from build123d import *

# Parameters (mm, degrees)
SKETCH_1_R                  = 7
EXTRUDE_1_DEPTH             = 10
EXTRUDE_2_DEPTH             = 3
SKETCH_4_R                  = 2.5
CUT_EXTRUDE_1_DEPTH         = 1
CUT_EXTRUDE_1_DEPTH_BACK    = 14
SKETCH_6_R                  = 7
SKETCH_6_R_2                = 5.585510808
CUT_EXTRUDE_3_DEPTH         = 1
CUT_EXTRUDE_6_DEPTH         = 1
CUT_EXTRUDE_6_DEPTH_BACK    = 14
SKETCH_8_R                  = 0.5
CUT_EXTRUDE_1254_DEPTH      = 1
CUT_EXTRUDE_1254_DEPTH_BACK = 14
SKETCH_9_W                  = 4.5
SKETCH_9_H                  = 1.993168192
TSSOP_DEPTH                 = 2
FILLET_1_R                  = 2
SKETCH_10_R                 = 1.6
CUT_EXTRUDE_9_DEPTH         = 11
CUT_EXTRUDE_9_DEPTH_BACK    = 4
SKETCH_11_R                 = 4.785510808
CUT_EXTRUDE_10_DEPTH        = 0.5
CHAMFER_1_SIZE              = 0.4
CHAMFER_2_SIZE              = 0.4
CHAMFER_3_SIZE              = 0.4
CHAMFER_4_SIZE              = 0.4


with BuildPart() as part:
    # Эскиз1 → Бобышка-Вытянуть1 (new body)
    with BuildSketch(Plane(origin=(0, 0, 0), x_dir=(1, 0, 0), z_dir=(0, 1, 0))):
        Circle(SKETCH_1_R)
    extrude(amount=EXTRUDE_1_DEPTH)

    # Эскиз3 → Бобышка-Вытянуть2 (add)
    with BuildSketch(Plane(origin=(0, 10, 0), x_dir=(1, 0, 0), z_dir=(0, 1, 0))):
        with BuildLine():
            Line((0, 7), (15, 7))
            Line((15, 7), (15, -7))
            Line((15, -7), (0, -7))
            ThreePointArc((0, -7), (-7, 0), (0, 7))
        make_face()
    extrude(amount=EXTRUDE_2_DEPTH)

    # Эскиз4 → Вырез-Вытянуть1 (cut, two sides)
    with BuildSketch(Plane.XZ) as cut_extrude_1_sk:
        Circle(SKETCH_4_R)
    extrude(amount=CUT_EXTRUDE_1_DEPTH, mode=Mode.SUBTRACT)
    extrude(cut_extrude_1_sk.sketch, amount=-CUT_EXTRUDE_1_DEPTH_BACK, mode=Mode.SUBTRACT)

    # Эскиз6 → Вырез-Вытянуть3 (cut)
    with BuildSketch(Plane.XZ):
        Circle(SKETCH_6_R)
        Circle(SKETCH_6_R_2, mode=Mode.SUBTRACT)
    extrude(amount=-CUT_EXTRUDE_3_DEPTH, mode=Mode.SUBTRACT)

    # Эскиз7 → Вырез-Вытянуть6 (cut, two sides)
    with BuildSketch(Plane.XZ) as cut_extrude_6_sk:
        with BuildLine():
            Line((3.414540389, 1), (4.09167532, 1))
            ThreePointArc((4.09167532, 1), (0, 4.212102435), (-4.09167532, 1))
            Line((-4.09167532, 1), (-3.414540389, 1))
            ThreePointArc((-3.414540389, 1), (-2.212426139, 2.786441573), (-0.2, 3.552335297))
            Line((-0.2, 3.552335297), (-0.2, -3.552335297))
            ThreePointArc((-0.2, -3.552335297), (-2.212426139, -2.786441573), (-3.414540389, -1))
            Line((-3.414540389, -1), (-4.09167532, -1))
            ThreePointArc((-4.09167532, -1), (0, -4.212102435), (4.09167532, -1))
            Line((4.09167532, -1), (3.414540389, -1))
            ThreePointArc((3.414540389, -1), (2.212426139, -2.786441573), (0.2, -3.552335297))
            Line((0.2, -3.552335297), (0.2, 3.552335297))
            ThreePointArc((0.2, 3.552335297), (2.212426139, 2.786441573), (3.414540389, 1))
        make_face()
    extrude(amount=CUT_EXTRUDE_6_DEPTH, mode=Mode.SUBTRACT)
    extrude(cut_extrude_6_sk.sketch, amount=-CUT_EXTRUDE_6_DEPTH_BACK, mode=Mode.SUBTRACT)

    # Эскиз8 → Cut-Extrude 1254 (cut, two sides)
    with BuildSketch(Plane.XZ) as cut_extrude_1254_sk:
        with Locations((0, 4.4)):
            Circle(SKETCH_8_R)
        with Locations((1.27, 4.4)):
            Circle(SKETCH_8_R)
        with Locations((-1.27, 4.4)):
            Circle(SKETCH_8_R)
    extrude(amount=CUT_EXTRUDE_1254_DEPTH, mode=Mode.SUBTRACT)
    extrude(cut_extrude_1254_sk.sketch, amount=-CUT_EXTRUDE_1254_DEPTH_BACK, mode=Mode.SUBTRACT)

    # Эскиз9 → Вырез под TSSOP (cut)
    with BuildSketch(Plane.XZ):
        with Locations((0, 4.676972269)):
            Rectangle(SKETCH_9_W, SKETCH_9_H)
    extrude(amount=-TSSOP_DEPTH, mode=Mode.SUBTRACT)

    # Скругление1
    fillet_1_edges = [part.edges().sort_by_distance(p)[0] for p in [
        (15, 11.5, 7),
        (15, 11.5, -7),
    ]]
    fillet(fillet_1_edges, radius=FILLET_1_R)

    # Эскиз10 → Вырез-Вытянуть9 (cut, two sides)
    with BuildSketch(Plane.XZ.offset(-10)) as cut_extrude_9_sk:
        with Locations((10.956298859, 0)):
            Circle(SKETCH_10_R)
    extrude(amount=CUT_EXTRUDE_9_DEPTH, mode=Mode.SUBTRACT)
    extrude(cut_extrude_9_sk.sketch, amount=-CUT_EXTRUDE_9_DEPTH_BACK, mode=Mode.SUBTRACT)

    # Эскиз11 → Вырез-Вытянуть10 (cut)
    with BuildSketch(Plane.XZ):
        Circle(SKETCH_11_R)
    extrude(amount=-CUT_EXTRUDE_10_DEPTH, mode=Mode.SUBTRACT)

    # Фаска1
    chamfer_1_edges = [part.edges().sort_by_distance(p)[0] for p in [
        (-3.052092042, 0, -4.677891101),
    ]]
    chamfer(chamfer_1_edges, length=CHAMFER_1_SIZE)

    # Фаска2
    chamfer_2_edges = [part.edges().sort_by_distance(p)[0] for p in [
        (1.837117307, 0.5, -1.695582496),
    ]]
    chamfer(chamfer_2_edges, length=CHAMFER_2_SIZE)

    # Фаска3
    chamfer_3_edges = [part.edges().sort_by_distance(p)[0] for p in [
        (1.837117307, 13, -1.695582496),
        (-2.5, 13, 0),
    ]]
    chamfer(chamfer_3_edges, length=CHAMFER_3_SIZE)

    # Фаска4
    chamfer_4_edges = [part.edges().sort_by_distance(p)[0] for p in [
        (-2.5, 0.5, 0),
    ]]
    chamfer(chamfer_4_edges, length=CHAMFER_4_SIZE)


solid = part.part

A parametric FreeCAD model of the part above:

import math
import FreeCAD as App
import Part
import Sketcher
from FreeCAD import Vector
Q = App.Units.Quantity


def edges_at(feature, points):
    """Names of the edges that pass closest to the given points."""
    edges = feature.Shape.Edges
    near = lambda p: min(range(len(edges)), key=lambda i: edges[i].distToShape(Part.Vertex(*p))[0])
    return sorted({f"Edge{near(p) + 1}" for p in points})

doc = App.newDocument("Part")
body = doc.addObject("PartDesign::Body", "Body")

sketch1 = doc.addObject("Sketcher::SketchObject", "Sketch")
body.addObject(sketch1)
sketch1.AttachmentSupport = (doc.XZ_Plane, [""])
sketch1.MapMode = "FlatFace"
sketch1.addGeometry(Part.Circle(Vector(0, 0, 0), Vector(0, 0, 1), 7), False)
sketch1.addConstraint([
    Sketcher.Constraint("Coincident", 0, 3, -1, 1),
    Sketcher.Constraint("Diameter", 0, Q("14 mm")),
])
pad1 = doc.addObject("PartDesign::Pad", "Pad")
body.addObject(pad1)
pad1.Profile = sketch1
pad1.Length = 10
pad1.Reversed = True

sketch2 = doc.addObject("Sketcher::SketchObject", "Sketch001")
body.addObject(sketch2)
sketch2.AttachmentSupport = (doc.XZ_Plane, [""])
sketch2.MapMode = "FlatFace"
sketch2.AttachmentOffset = App.Placement(Vector(0, 0, -10), App.Rotation())
sketch2.addGeometry([
    Part.LineSegment(Vector(15, -7, 0), Vector(0, -7, 0)),
    Part.ArcOfCircle(Part.Circle(Vector(0, 0, 0), Vector(0, 0, 1), 7), math.radians(90), math.radians(270)),
    Part.LineSegment(Vector(0, 7, 0), Vector(15, 7, 0)),
    Part.LineSegment(Vector(15, 7, 0), Vector(15, -7, 0)),
], False)
sketch2.addConstraint([
    Sketcher.Constraint("Tangent", 0, 2, 1, 2),
    Sketcher.Constraint("Tangent", 1, 1, 2, 1),
    Sketcher.Constraint("Coincident", 2, 2, 3, 1),
    Sketcher.Constraint("Coincident", 3, 2, 0, 1),
    Sketcher.Constraint("Horizontal", 0),
    Sketcher.Constraint("Horizontal", 2),
    Sketcher.Constraint("Vertical", 3),
    Sketcher.Constraint("Coincident", 1, 3, -1, 1),
    Sketcher.Constraint("Radius", 1, Q("7 mm")),
    Sketcher.Constraint("DistanceX", 0, 2, 0, 1, Q("15 mm")),
])
pad2 = doc.addObject("PartDesign::Pad", "Pad001")
body.addObject(pad2)
pad2.Profile = sketch2
pad2.Length = 3
pad2.Reversed = True

sketch3 = doc.addObject("Sketcher::SketchObject", "Sketch002")
body.addObject(sketch3)
sketch3.AttachmentSupport = (doc.XZ_Plane, [""])
sketch3.MapMode = "FlatFace"
sketch3.addGeometry(Part.Circle(Vector(0, 0, 0), Vector(0, 0, 1), 2.5), False)
sketch3.addConstraint([
    Sketcher.Constraint("Coincident", 0, 3, -1, 1),
    Sketcher.Constraint("Diameter", 0, Q("5 mm")),
])
pocket1 = doc.addObject("PartDesign::Pocket", "Pocket")
body.addObject(pocket1)
pocket1.Profile = sketch3
pocket1.Type = "ThroughAll"
pocket1.Midplane = True

sketch4 = doc.addObject("Sketcher::SketchObject", "Sketch003")
body.addObject(sketch4)
sketch4.AttachmentSupport = (doc.XZ_Plane, [""])
sketch4.MapMode = "FlatFace"
sketch4.addGeometry([
    Part.Circle(Vector(0, 0, 0), Vector(0, 0, 1), 7),
    Part.Circle(Vector(0, 0, 0), Vector(0, 0, 1), 6),
], False)
sketch4.addConstraint([
    Sketcher.Constraint("Coincident", 0, 3, -1, 1),
    Sketcher.Constraint("Coincident", 1, 3, -1, 1),
    Sketcher.Constraint("Diameter", 0, Q("14 mm")),
    Sketcher.Constraint("Diameter", 1, Q("11.171022 mm")),
])
pocket2 = doc.addObject("PartDesign::Pocket", "Pocket001")
body.addObject(pocket2)
pocket2.Profile = sketch4
pocket2.Length = 1

sketch5 = doc.addObject("Sketcher::SketchObject", "Sketch004")
body.addObject(sketch5)
sketch5.AttachmentSupport = (doc.XZ_Plane, [""])
sketch5.MapMode = "FlatFace"
sketch5.addGeometry([
    Part.LineSegment(Vector(3.4, 1, 0), Vector(4.1, 1, 0)),
    Part.ArcOfCircle(Part.Circle(Vector(0, 0, 0), Vector(0, 0, 1), 4.2), math.radians(14), math.radians(166)),
    Part.LineSegment(Vector(-4.1, 1, 0), Vector(-3.4, 1, 0)),
    Part.ArcOfCircle(Part.Circle(Vector(0, 0, 0), Vector(0, 0, 1), 3.6), math.radians(93), math.radians(164)),
    Part.LineSegment(Vector(-0.2, 3.6, 0), Vector(-0.2, -3.6, 0)),
    Part.ArcOfCircle(Part.Circle(Vector(0, 0, 0), Vector(0, 0, 1), 3.6), math.radians(-164), math.radians(-93)),
    Part.LineSegment(Vector(-3.4, -1, 0), Vector(-4.1, -1, 0)),
    Part.ArcOfCircle(Part.Circle(Vector(0, 0, 0), Vector(0, 0, 1), 4.2), math.radians(-166), math.radians(-14)),
    Part.LineSegment(Vector(4.1, -1, 0), Vector(3.4, -1, 0)),
    Part.ArcOfCircle(Part.Circle(Vector(0, 0, 0), Vector(0, 0, 1), 3.6), math.radians(-87), math.radians(-16)),
    Part.LineSegment(Vector(0.2, -3.6, 0), Vector(0.2, 3.6, 0)),
    Part.ArcOfCircle(Part.Circle(Vector(0, 0, 0), Vector(0, 0, 1), 3.6), math.radians(16), math.radians(87)),
], False)
sketch5.addConstraint([
    Sketcher.Constraint("Coincident", 0, 2, 1, 1),
    Sketcher.Constraint("Coincident", 1, 2, 2, 1),
    Sketcher.Constraint("Coincident", 2, 2, 3, 2),
    Sketcher.Constraint("Coincident", 3, 1, 4, 1),
    Sketcher.Constraint("Coincident", 4, 2, 5, 2),
    Sketcher.Constraint("Coincident", 5, 1, 6, 1),
    Sketcher.Constraint("Coincident", 6, 2, 7, 1),
    Sketcher.Constraint("Coincident", 7, 2, 8, 1),
    Sketcher.Constraint("Coincident", 8, 2, 9, 2),
    Sketcher.Constraint("Coincident", 9, 1, 10, 1),
    Sketcher.Constraint("Coincident", 10, 2, 11, 2),
    Sketcher.Constraint("Coincident", 11, 1, 0, 1),
    Sketcher.Constraint("Horizontal", 0),
    Sketcher.Constraint("Horizontal", 2),
    Sketcher.Constraint("Vertical", 4),
    Sketcher.Constraint("Horizontal", 6),
    Sketcher.Constraint("Horizontal", 8),
    Sketcher.Constraint("Vertical", 10),
    Sketcher.Constraint("Coincident", 1, 3, -1, 1),
    Sketcher.Constraint("Coincident", 3, 3, -1, 1),
    Sketcher.Constraint("Coincident", 5, 3, -1, 1),
    Sketcher.Constraint("Coincident", 7, 3, -1, 1),
    Sketcher.Constraint("Coincident", 9, 3, -1, 1),
    Sketcher.Constraint("Coincident", 11, 3, -1, 1),
    Sketcher.Constraint("Equal", 3, 5),
    Sketcher.Constraint("Equal", 1, 7),
    Sketcher.Constraint("Equal", 5, 9),
    Sketcher.Constraint("Equal", 9, 11),
    Sketcher.Constraint("Horizontal", 0, 2, 1, 2),
    Sketcher.Constraint("Horizontal", 6, 2, 7, 2),
    Sketcher.Constraint("Horizontal", 4, 2, 9, 1),
    Sketcher.Constraint("Vertical", 2, 2, 5, 1),
    Sketcher.Constraint("DistanceY", -1, 1, 0, 2, Q("1 mm")),
    Sketcher.Constraint("DistanceX", 3, 1, -1, 1, Q("0.2 mm")),
    Sketcher.Constraint("Radius", 3, Q("3.557961 mm")),
    Sketcher.Constraint("Radius", 1, Q("4.212102 mm")),
])
pocket3 = doc.addObject("PartDesign::Pocket", "Pocket002")
body.addObject(pocket3)
pocket3.Profile = sketch5
pocket3.Type = "ThroughAll"
pocket3.Midplane = True

sketch6 = doc.addObject("Sketcher::SketchObject", "Sketch005")
body.addObject(sketch6)
sketch6.AttachmentSupport = (doc.XZ_Plane, [""])
sketch6.MapMode = "FlatFace"
sketch6.addGeometry([
    Part.Circle(Vector(0, 4.4, 0), Vector(0, 0, 1), 0.5),
    Part.Circle(Vector(1.3, 4.4, 0), Vector(0, 0, 1), 0.5),
    Part.Circle(Vector(-1.3, 4.4, 0), Vector(0, 0, 1), 0.5),
], False)
sketch6.addConstraint([
    Sketcher.Constraint("Equal", 0, 1),
    Sketcher.Constraint("Equal", 1, 2),
    Sketcher.Constraint("Symmetric", 1, 3, 2, 3, -2),
    Sketcher.Constraint("PointOnObject", 0, 3, -2),
    Sketcher.Constraint("Horizontal", 0, 3, 1, 3),
    Sketcher.Constraint("Diameter", 0, Q("1 mm")),
    Sketcher.Constraint("DistanceY", -1, 1, 0, 3, Q("4.4 mm")),
    Sketcher.Constraint("DistanceX", -1, 1, 1, 3, Q("1.27 mm")),
])
pocket4 = doc.addObject("PartDesign::Pocket", "Pocket003")
body.addObject(pocket4)
pocket4.Profile = sketch6
pocket4.Type = "ThroughAll"
pocket4.Midplane = True

sketch7 = doc.addObject("Sketcher::SketchObject", "Sketch006")
body.addObject(sketch7)
sketch7.AttachmentSupport = (doc.XZ_Plane, [""])
sketch7.MapMode = "FlatFace"
sketch7.addGeometry([
    Part.LineSegment(Vector(-2.2, 5.7, 0), Vector(-2.2, 3.7, 0)),
    Part.LineSegment(Vector(-2.2, 3.7, 0), Vector(2.2, 3.7, 0)),
    Part.LineSegment(Vector(2.2, 3.7, 0), Vector(2.2, 5.7, 0)),
    Part.LineSegment(Vector(2.2, 5.7, 0), Vector(-2.2, 5.7, 0)),
], False)
sketch7.addConstraint([
    Sketcher.Constraint("Coincident", 0, 2, 1, 1),
    Sketcher.Constraint("Coincident", 1, 2, 2, 1),
    Sketcher.Constraint("Coincident", 2, 2, 3, 1),
    Sketcher.Constraint("Coincident", 3, 2, 0, 1),
    Sketcher.Constraint("Vertical", 0),
    Sketcher.Constraint("Horizontal", 1),
    Sketcher.Constraint("Vertical", 2),
    Sketcher.Constraint("Horizontal", 3),
    Sketcher.Constraint("DistanceX", 1, 1, 1, 2, Q("4.5 mm")),
    Sketcher.Constraint("DistanceX", 0, 2, -1, 1, Q("2.25 mm")),
    Sketcher.Constraint("DistanceY", 0, 2, 0, 1, Q("1.993168 mm")),
    Sketcher.Constraint("DistanceY", -1, 1, 0, 2, Q("3.680388 mm")),
])
pocket5 = doc.addObject("PartDesign::Pocket", "Pocket004")
body.addObject(pocket5)
pocket5.Profile = sketch7
pocket5.Length = 2
doc.recompute()

fillet = doc.addObject("PartDesign::Fillet", "Fillet")
body.addObject(fillet)
fillet.Base = (pocket5, edges_at(pocket5, [(15, 11.5, 7), (15, 11.5, -7)]))
fillet.Radius = 2

sketch8 = doc.addObject("Sketcher::SketchObject", "Sketch007")
body.addObject(sketch8)
sketch8.AttachmentSupport = (doc.XZ_Plane, [""])
sketch8.MapMode = "FlatFace"
sketch8.AttachmentOffset = App.Placement(Vector(0, 0, -10), App.Rotation())
sketch8.addGeometry(Part.Circle(Vector(11, 0, 0), Vector(0, 0, 1), 1.6), False)
sketch8.addConstraint([
    Sketcher.Constraint("PointOnObject", 0, 3, -1),
    Sketcher.Constraint("Diameter", 0, Q("3.2 mm")),
    Sketcher.Constraint("DistanceX", -1, 1, 0, 3, Q("10.956299 mm")),
])
pocket6 = doc.addObject("PartDesign::Pocket", "Pocket005")
body.addObject(pocket6)
pocket6.Profile = sketch8
pocket6.Type = "ThroughAll"
pocket6.Midplane = True

sketch9 = doc.addObject("Sketcher::SketchObject", "Sketch008")
body.addObject(sketch9)
sketch9.AttachmentSupport = (doc.XZ_Plane, [""])
sketch9.MapMode = "FlatFace"
sketch9.addGeometry(Part.Circle(Vector(0, 0, 0), Vector(0, 0, 1), 4.8), False)
sketch9.addConstraint([
    Sketcher.Constraint("Coincident", 0, 3, -1, 1),
    Sketcher.Constraint("Diameter", 0, Q("9.571022 mm")),
])
pocket7 = doc.addObject("PartDesign::Pocket", "Pocket006")
body.addObject(pocket7)
pocket7.Profile = sketch9
pocket7.Length = 0.5
doc.recompute()

chamfer = doc.addObject("PartDesign::Chamfer", "Chamfer")
body.addObject(chamfer)
chamfer.Base = (pocket7, edges_at(pocket7, [(-3.052, 0, -4.678)]))
chamfer.Size = 0.4
doc.recompute()

chamfer2 = doc.addObject("PartDesign::Chamfer", "Chamfer001")
body.addObject(chamfer2)
chamfer2.Base = (chamfer, edges_at(chamfer, [(1.837, 0.5, -1.696)]))
chamfer2.Size = 0.4
doc.recompute()

chamfer3 = doc.addObject("PartDesign::Chamfer", "Chamfer002")
body.addObject(chamfer3)
chamfer3.Base = (chamfer2, edges_at(chamfer2, [(2.5, 13, 0), (-2.5, 13, 0)]))
chamfer3.Size = 0.4
doc.recompute()

chamfer4 = doc.addObject("PartDesign::Chamfer", "Chamfer003")
body.addObject(chamfer4)
chamfer4.Base = (chamfer3, edges_at(chamfer3, [(-2.5, 0.5, 0)]))
chamfer4.Size = 0.4

doc.recompute()
